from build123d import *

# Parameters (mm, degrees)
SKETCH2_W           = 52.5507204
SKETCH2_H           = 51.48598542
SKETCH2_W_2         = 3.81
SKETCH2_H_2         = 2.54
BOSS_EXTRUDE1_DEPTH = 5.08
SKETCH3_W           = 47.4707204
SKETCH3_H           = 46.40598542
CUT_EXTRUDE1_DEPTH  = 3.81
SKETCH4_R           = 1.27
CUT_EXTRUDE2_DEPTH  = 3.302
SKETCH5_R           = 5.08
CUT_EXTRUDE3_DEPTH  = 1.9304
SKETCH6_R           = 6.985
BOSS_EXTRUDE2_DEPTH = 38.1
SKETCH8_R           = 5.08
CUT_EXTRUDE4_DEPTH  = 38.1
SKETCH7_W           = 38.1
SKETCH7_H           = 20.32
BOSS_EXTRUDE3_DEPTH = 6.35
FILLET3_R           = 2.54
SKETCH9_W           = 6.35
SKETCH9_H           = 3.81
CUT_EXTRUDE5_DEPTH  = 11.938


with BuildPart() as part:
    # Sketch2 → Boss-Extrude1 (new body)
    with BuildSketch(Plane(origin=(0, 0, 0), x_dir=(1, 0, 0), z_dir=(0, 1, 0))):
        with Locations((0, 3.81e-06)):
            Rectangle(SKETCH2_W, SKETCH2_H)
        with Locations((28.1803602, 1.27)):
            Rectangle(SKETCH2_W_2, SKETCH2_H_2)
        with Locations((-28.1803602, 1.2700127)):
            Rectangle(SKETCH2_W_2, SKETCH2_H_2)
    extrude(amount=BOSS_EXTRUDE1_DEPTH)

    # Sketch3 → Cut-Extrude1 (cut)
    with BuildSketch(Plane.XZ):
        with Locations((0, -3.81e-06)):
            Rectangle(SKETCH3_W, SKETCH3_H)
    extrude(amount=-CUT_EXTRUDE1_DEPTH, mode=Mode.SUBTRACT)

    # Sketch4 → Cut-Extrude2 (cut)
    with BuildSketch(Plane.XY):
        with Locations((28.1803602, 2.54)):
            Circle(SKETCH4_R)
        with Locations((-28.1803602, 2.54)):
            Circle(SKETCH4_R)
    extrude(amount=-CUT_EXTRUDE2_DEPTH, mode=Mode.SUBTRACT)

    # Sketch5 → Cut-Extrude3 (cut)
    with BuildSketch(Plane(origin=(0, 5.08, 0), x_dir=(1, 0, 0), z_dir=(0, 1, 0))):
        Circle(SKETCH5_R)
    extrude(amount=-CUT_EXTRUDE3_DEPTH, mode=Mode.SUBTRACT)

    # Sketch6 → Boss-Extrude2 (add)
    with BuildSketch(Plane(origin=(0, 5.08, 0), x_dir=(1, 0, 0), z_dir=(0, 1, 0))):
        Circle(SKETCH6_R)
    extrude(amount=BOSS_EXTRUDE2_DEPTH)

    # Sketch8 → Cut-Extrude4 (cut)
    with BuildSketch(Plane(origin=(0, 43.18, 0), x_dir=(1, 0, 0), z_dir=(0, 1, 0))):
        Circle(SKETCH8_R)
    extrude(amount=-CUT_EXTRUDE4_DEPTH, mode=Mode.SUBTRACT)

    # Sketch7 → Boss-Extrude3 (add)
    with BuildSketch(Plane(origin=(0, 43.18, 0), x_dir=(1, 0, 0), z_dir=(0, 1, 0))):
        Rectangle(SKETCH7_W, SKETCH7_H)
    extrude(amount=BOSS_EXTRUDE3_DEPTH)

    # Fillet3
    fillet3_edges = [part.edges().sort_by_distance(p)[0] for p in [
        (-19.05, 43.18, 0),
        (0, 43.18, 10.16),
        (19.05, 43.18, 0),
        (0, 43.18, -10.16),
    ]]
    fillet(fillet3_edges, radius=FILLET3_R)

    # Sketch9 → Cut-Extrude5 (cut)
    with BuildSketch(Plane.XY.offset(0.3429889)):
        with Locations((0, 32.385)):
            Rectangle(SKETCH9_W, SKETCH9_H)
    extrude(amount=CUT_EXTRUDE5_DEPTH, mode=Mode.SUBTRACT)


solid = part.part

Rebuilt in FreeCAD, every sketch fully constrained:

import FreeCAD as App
import Part
import Sketcher
from FreeCAD import Vector
Q = App.Units.Quantity


def edges_at(feature, points):
    """Names of the edges that pass closest to the given points."""
    edges = feature.Shape.Edges
    near = lambda p: min(range(len(edges)), key=lambda i: edges[i].distToShape(Part.Vertex(*p))[0])
    return sorted({f"Edge{near(p) + 1}" for p in points})


def add_polygon(sketch, points):
    """Adds a closed chain of lines whose ends are joined by coincident constraints."""
    first, n = sketch.GeometryCount, len(points)
    for a, b in zip(points, points[1:] + points[:1]):
        sketch.addGeometry(Part.LineSegment(App.Vector(*a, 0), App.Vector(*b, 0)), False)
    for i in range(n):
        sketch.addConstraint(Sketcher.Constraint("Coincident", first + i, 2, first + (i + 1) % n, 1))

doc = App.newDocument("Part")
params = doc.addObject("Spreadsheet::Sheet", "Params")
for row, (alias, value) in enumerate([
    ("sketch1_height", "0.1 in"),
    ("sketch1_width", "0.15 in"),
    ("pad1_length", "0.2 in"),
    ("pocket1_length", "0.15 in"),
    ("sketch3_diameter", "0.1 in"),
    ("pocket2_length", "0.13 in"),
    ("sketch4_diameter", "0.4 in"),
    ("pocket3_length", "0.076 in"),
    ("sketch5_diameter", "0.55 in"),
    ("pad2_length", "1.5 in"),
    ("sketch6_diameter", "0.4 in"),
    ("pocket4_length", "1.5 in"),
    ("sketch7_width", "1.5 in"),
    ("sketch7_height", "0.8 in"),
    ("pad3_length", "0.25 in"),
    ("fillet_radius", "0.1 in"),
    ("sketch8_width", "0.25 in"),
    ("sketch8_height", "0.15 in"),
    ("pocket5_length", "0.47 in"),
], start=1):
    params.set(f"A{row}", alias)
    params.set(f"B{row}", "=" + value)
    params.setAlias(f"B{row}", alias)

body = doc.addObject("PartDesign::Body", "Body")

# Sketch on XZ plane
sketch1 = body.newObject("Sketcher::SketchObject", "Sketch")
sketch1.AttachmentSupport = (doc.getObject("XZ_Plane"), [""])
sketch1.MapMode = "FlatFace"
add_polygon(sketch1, [(-26.27536, -0.000013), (-26.27536, 25.742993), (26.27536, 25.742993), (26.27536, 0), (30.08536, 0), (30.08536, -2.54), (26.27536, -2.54), (26.27536, -25.742993), (-26.27536, -25.742993), (-26.27536, -2.540013), (-30.08536, -2.540013), (-30.08536, -0.000013)])  # lines 0-11
sketch1.addConstraint([
    Sketcher.Constraint("Vertical", 0),
    Sketcher.Constraint("Horizontal", 1),
    Sketcher.Constraint("Vertical", 2),
    Sketcher.Constraint("Horizontal", 3),
    Sketcher.Constraint("Vertical", 4),
    Sketcher.Constraint("Horizontal", 5),
    Sketcher.Constraint("Vertical", 6),
    Sketcher.Constraint("Horizontal", 7),
    Sketcher.Constraint("Vertical", 8),
    Sketcher.Constraint("Horizontal", 9),
    Sketcher.Constraint("Vertical", 10),
    Sketcher.Constraint("Horizontal", 11),
    Sketcher.Constraint("Symmetric", 0, 2, 6, 2, -1, 1),
    Sketcher.Constraint("PointOnObject", 2, 2, -1),
    Sketcher.Constraint("Vertical", 2, 2, 5, 2),
    Sketcher.Constraint("Vertical", 0, 2, 7, 2),
    Sketcher.Constraint("Equal", 5, 9),
    Sketcher.Constraint("Equal", 4, 10),
    Sketcher.Constraint("DistanceY", 4, 2, 4, 1, Q("0.1 in")),
    Sketcher.Constraint("DistanceX", 3, 1, 3, 2, Q("0.15 in")),
    Sketcher.Constraint("DistanceX", 1, 1, 1, 2, 52.55072),
    Sketcher.Constraint("DistanceY", 8, 1, 8, 2, 23.20298),
    Sketcher.Constraint("DistanceY", 0, 1, 0, 2, 25.743005),
])
sketch1.setExpression("Constraints[30]", "Params.sketch1_height")
sketch1.setExpression("Constraints[31]", "Params.sketch1_width")
pad1 = body.newObject("PartDesign::Pad", "Pad")
pad1.Profile = sketch1
pad1.setExpression("Length", "Params.pad1_length")
pad1.Reversed = True

# Sketch on XZ plane
sketch2 = body.newObject("Sketcher::SketchObject", "Sketch001")
sketch2.AttachmentSupport = (doc.getObject("XZ_Plane"), [""])
sketch2.MapMode = "FlatFace"
add_polygon(sketch2, [(-23.73536, 23.202993), (-23.73536, -23.202993), (23.73536, -23.202993), (23.73536, 23.202993)])  # lines 0-3
sketch2.addConstraint([
    Sketcher.Constraint("Vertical", 0),
    Sketcher.Constraint("Horizontal", 1),
    Sketcher.Constraint("Vertical", 2),
    Sketcher.Constraint("Horizontal", 3),
    Sketcher.Constraint("Symmetric", 0, 2, 2, 2, -1, 1),
    Sketcher.Constraint("DistanceX", 1, 1, 1, 2, 47.47072),
    Sketcher.Constraint("DistanceY", 0, 2, 0, 1, 46.405985),
])
pocket1 = body.newObject("PartDesign::Pocket", "Pocket")
pocket1.Profile = sketch2
pocket1.setExpression("Length", "Params.pocket1_length")

# Sketch on XY plane
sketch3 = body.newObject("Sketcher::SketchObject", "Sketch002")
sketch3.AttachmentSupport = (doc.getObject("XY_Plane"), [""])
sketch3.MapMode = "FlatFace"
sketch3.addGeometry([
    Part.Circle(Vector(28.18036, 2.54, 0), Vector(0, 0, 1), 1.27),
    Part.Circle(Vector(-28.18036, 2.54, 0), Vector(0, 0, 1), 1.27),
], False)
sketch3.addConstraint([
    Sketcher.Constraint("Equal", 0, 1),
    Sketcher.Constraint("Symmetric", 0, 3, 1, 3, -2),
    Sketcher.Constraint("Diameter", 0, Q("0.1 in")),
    Sketcher.Constraint("DistanceY", -1, 1, 0, 3, Q("0.1 in")),
    Sketcher.Constraint("DistanceX", -1, 1, 0, 3, 28.18036),
])
sketch3.setExpression("Constraints[2]", "Params.sketch3_diameter")
pocket2 = body.newObject("PartDesign::Pocket", "Pocket001")
pocket2.Profile = sketch3
pocket2.setExpression("Length", "Params.pocket2_length")

# Sketch on XZ plane
sketch4 = body.newObject("Sketcher::SketchObject", "Sketch003")
sketch4.AttachmentSupport = (doc.getObject("XZ_Plane"), [""])
sketch4.MapMode = "FlatFace"
sketch4.AttachmentOffset = App.Placement(Vector(0, 0, -0.2 * 25.4), App.Rotation())
sketch4.addGeometry(Part.Circle(Vector(0, 0, 0), Vector(0, 0, 1), 5.08), False)
sketch4.addConstraint([
    Sketcher.Constraint("Coincident", 0, 3, -1, 1),
    Sketcher.Constraint("Diameter", 0, Q("0.4 in")),
])
sketch4.setExpression("Constraints[1]", "Params.sketch4_diameter")
pocket3 = body.newObject("PartDesign::Pocket", "Pocket002")
pocket3.Profile = sketch4
pocket3.setExpression("Length", "Params.pocket3_length")
pocket3.Reversed = True

# Sketch on XZ plane
sketch5 = body.newObject("Sketcher::SketchObject", "Sketch004")
sketch5.AttachmentSupport = (doc.getObject("XZ_Plane"), [""])
sketch5.MapMode = "FlatFace"
sketch5.AttachmentOffset = App.Placement(Vector(0, 0, -0.2 * 25.4), App.Rotation())
sketch5.addGeometry(Part.Circle(Vector(0, 0, 0), Vector(0, 0, 1), 6.985), False)
sketch5.addConstraint([
    Sketcher.Constraint("Coincident", 0, 3, -1, 1),
    Sketcher.Constraint("Diameter", 0, Q("0.55 in")),
])
sketch5.setExpression("Constraints[1]", "Params.sketch5_diameter")
pad2 = body.newObject("PartDesign::Pad", "Pad001")
pad2.Profile = sketch5
pad2.setExpression("Length", "Params.pad2_length")
pad2.Reversed = True

# Sketch on XZ plane
sketch6 = body.newObject("Sketcher::SketchObject", "Sketch005")
sketch6.AttachmentSupport = (doc.getObject("XZ_Plane"), [""])
sketch6.MapMode = "FlatFace"
sketch6.AttachmentOffset = App.Placement(Vector(0, 0, -1.7 * 25.4), App.Rotation())
sketch6.addGeometry(Part.Circle(Vector(0, 0, 0), Vector(0, 0, 1), 5.08), False)
sketch6.addConstraint([
    Sketcher.Constraint("Coincident", 0, 3, -1, 1),
    Sketcher.Constraint("Diameter", 0, Q("0.4 in")),
])
sketch6.setExpression("Constraints[1]", "Params.sketch6_diameter")
pocket4 = body.newObject("PartDesign::Pocket", "Pocket003")
pocket4.Profile = sketch6
pocket4.setExpression("Length", "Params.pocket4_length")
pocket4.Reversed = True

# Sketch on XZ plane
sketch7 = body.newObject("Sketcher::SketchObject", "Sketch006")
sketch7.AttachmentSupport = (doc.getObject("XZ_Plane"), [""])
sketch7.MapMode = "FlatFace"
sketch7.AttachmentOffset = App.Placement(Vector(0, 0, -1.7 * 25.4), App.Rotation())
add_polygon(sketch7, [(-19.05, -10.16), (-19.05, 10.16), (19.05, 10.16), (19.05, -10.16)])  # lines 0-3
sketch7.addConstraint([
    Sketcher.Constraint("Vertical", 0),
    Sketcher.Constraint("Horizontal", 1),
    Sketcher.Constraint("Vertical", 2),
    Sketcher.Constraint("Horizontal", 3),
    Sketcher.Constraint("Symmetric", 0, 2, 2, 2, -1, 1),
    Sketcher.Constraint("DistanceX", 1, 1, 1, 2, Q("1.5 in")),
    Sketcher.Constraint("DistanceY", 0, 1, 0, 2, Q("0.8 in")),
])
sketch7.setExpression("Constraints[9]", "Params.sketch7_width")
sketch7.setExpression("Constraints[10]", "Params.sketch7_height")
pad3 = body.newObject("PartDesign::Pad", "Pad002")
pad3.Profile = sketch7
pad3.setExpression("Length", "Params.pad3_length")
pad3.Reversed = True
doc.recompute()

fillet = body.newObject("PartDesign::Fillet", "Fillet")
fillet.Base = (pad3, edges_at(pad3, [
    (-19.05, 43.18, 0),
    (0, 43.18, 10.16),
    (19.05, 43.18, 0),
    (0, 43.18, -10.16),
]))
fillet.setExpression("Radius", "Params.fillet_radius")

# Sketch on XY plane
sketch8 = body.newObject("Sketcher::SketchObject", "Sketch007")
sketch8.AttachmentSupport = (doc.getObject("XY_Plane"), [""])
sketch8.MapMode = "FlatFace"
sketch8.AttachmentOffset = App.Placement(Vector(0, 0, 0.342989), App.Rotation())
add_polygon(sketch8, [(-3.175, 34.29), (-3.175, 30.48), (3.175, 30.48), (3.175, 34.29)])  # lines 0-3
sketch8.addConstraint([
    Sketcher.Constraint("Vertical", 0),
    Sketcher.Constraint("Horizontal", 1),
    Sketcher.Constraint("Vertical", 2),
    Sketcher.Constraint("Horizontal", 3),
    Sketcher.Constraint("DistanceX", 1, 1, 1, 2, Q("0.25 in")),
    Sketcher.Constraint("DistanceY", 0, 2, 0, 1, Q("0.15 in")),
    Sketcher.Constraint("DistanceY", -1, 1, 0, 2, Q("1.2 in")),
    Sketcher.Constraint("DistanceX", 0, 2, -1, 1, Q("0.125 in")),
])
sketch8.setExpression("Constraints[8]", "Params.sketch8_width")
sketch8.setExpression("Constraints[9]", "Params.sketch8_height")
pocket5 = body.newObject("PartDesign::Pocket", "Pocket004")
pocket5.Profile = sketch8
pocket5.setExpression("Length", "Params.pocket5_length")
pocket5.Reversed = True

doc.recompute()
